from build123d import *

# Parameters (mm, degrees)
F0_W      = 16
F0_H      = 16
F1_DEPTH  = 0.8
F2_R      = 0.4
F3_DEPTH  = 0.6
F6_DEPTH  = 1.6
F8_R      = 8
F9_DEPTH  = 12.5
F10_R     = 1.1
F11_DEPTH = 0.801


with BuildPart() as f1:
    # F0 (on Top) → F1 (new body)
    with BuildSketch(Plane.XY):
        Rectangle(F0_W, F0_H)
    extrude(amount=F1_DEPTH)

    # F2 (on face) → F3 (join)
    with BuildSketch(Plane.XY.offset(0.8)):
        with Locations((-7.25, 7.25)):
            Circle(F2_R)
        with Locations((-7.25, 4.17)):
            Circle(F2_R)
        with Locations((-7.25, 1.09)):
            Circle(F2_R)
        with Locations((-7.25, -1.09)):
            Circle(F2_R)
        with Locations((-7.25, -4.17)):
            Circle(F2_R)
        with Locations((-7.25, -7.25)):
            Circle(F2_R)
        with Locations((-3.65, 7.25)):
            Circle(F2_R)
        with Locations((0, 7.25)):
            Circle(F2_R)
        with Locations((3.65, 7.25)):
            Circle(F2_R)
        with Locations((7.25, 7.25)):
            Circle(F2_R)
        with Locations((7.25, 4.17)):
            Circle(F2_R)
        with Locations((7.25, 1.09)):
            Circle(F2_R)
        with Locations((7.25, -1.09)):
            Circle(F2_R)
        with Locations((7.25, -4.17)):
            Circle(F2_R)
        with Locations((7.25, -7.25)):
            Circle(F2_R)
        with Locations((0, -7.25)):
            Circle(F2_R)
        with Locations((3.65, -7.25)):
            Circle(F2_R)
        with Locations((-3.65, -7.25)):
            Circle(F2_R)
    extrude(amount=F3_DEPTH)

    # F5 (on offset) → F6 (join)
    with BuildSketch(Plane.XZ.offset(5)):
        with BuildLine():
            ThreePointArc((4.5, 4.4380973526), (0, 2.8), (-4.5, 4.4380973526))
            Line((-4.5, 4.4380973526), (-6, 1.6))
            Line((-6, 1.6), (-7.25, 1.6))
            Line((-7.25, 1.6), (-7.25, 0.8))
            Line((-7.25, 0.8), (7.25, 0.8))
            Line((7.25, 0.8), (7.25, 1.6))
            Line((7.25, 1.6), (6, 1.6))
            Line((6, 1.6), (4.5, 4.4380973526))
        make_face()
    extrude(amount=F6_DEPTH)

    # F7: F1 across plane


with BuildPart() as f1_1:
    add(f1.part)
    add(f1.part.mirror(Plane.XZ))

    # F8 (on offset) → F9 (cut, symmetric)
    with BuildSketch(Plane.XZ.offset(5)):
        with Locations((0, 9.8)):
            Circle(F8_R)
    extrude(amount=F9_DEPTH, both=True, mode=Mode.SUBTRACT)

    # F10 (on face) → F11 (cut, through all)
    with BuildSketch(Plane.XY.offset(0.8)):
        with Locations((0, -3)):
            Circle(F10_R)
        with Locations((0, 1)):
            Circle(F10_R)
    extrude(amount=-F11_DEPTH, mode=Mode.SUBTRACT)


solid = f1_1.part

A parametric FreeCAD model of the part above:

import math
import FreeCAD as App
import Part
import Sketcher

V = App.Vector
Q = App.Units.Quantity

doc = App.newDocument("Part")
body = doc.addObject("PartDesign::Body", "Body")

sketch1 = body.newObject("Sketcher::SketchObject", "Sketch")
sketch1.AttachmentSupport = (doc.getObject("XY_Plane"), [""])
sketch1.MapMode = "FlatFace"
sketch1.addGeometry(Part.LineSegment(V(-8, 8, 0), V(-8, -8, 0)), False)
sketch1.addGeometry(Part.LineSegment(V(-8, -8, 0), V(8, -8, 0)), False)
sketch1.addGeometry(Part.LineSegment(V(8, -8, 0), V(8, 8, 0)), False)
sketch1.addGeometry(Part.LineSegment(V(8, 8, 0), V(-8, 8, 0)), False)
sketch1.addConstraint(Sketcher.Constraint("Coincident", 0, 2, 1, 1))
sketch1.addConstraint(Sketcher.Constraint("Coincident", 1, 2, 2, 1))
sketch1.addConstraint(Sketcher.Constraint("Coincident", 2, 2, 3, 1))
sketch1.addConstraint(Sketcher.Constraint("Coincident", 3, 2, 0, 1))
sketch1.addConstraint(Sketcher.Constraint("Vertical", 0))
sketch1.addConstraint(Sketcher.Constraint("Horizontal", 1))
sketch1.addConstraint(Sketcher.Constraint("Vertical", 2))
sketch1.addConstraint(Sketcher.Constraint("Horizontal", 3))
sketch1.addConstraint(Sketcher.Constraint("Symmetric", 0, 2, 2, 2, -1, 1))
sketch1.addConstraint(Sketcher.Constraint("Equal", 3, 0))
sketch1.addConstraint(Sketcher.Constraint("DistanceX", 1, 1, 1, 2, Q("16 mm")))
pad1 = body.newObject("PartDesign::Pad", "Pad")
pad1.Profile = sketch1
pad1.Length = 0.8

sketch2 = body.newObject("Sketcher::SketchObject", "Sketch001")
sketch2.AttachmentSupport = (doc.getObject("XY_Plane"), [""])
sketch2.MapMode = "FlatFace"
sketch2.AttachmentOffset = App.Placement(V(0, 0, 0.8), App.Rotation())
sketch2.addGeometry(Part.Circle(V(-7.25, 7.25, 0), V(0, 0, 1), 0.4), False)
sketch2.addGeometry(Part.Circle(V(-7.25, 4.17, 0), V(0, 0, 1), 0.4), False)
sketch2.addGeometry(Part.Circle(V(-7.25, 1.09, 0), V(0, 0, 1), 0.4), False)
sketch2.addGeometry(Part.Circle(V(-7.25, -1.09, 0), V(0, 0, 1), 0.4), False)
sketch2.addGeometry(Part.Circle(V(-7.25, -4.17, 0), V(0, 0, 1), 0.4), False)
sketch2.addGeometry(Part.Circle(V(-7.25, -7.25, 0), V(0, 0, 1), 0.4), False)
sketch2.addGeometry(Part.Circle(V(-3.65, 7.25, 0), V(0, 0, 1), 0.4), False)
sketch2.addGeometry(Part.Circle(V(0, 7.25, 0), V(0, 0, 1), 0.4), False)
sketch2.addGeometry(Part.Circle(V(3.65, 7.25, 0), V(0, 0, 1), 0.4), False)
sketch2.addGeometry(Part.Circle(V(7.25, 7.25, 0), V(0, 0, 1), 0.4), False)
sketch2.addGeometry(Part.Circle(V(7.25, 4.17, 0), V(0, 0, 1), 0.4), False)
sketch2.addGeometry(Part.Circle(V(7.25, 1.09, 0), V(0, 0, 1), 0.4), False)
sketch2.addGeometry(Part.Circle(V(7.25, -1.09, 0), V(0, 0, 1), 0.4), False)
sketch2.addGeometry(Part.Circle(V(7.25, -4.17, 0), V(0, 0, 1), 0.4), False)
sketch2.addGeometry(Part.Circle(V(7.25, -7.25, 0), V(0, 0, 1), 0.4), False)
sketch2.addGeometry(Part.Circle(V(0, -7.25, 0), V(0, 0, 1), 0.4), False)
sketch2.addGeometry(Part.Circle(V(3.65, -7.25, 0), V(0, 0, 1), 0.4), False)
sketch2.addGeometry(Part.Circle(V(-3.65, -7.25, 0), V(0, 0, 1), 0.4), False)
sketch2.addConstraint(Sketcher.Constraint("Equal", 0, 1))
sketch2.addConstraint(Sketcher.Constraint("Equal", 1, 2))
sketch2.addConstraint(Sketcher.Constraint("Equal", 2, 3))
sketch2.addConstraint(Sketcher.Constraint("Equal", 3, 4))
sketch2.addConstraint(Sketcher.Constraint("Equal", 4, 5))
sketch2.addConstraint(Sketcher.Constraint("Equal", 5, 6))
sketch2.addConstraint(Sketcher.Constraint("Equal", 6, 7))
sketch2.addConstraint(Sketcher.Constraint("Equal", 7, 8))
sketch2.addConstraint(Sketcher.Constraint("Equal", 8, 9))
sketch2.addConstraint(Sketcher.Constraint("Equal", 9, 10))
sketch2.addConstraint(Sketcher.Constraint("Equal", 10, 11))
sketch2.addConstraint(Sketcher.Constraint("Equal", 11, 12))
sketch2.addConstraint(Sketcher.Constraint("Equal", 12, 13))
sketch2.addConstraint(Sketcher.Constraint("Equal", 13, 14))
sketch2.addConstraint(Sketcher.Constraint("Equal", 14, 15))
sketch2.addConstraint(Sketcher.Constraint("Equal", 15, 16))
sketch2.addConstraint(Sketcher.Constraint("Equal", 16, 17))
sketch2.addConstraint(Sketcher.Constraint("Symmetric", 5, 3, 9, 3, -1, 1))
sketch2.addConstraint(Sketcher.Constraint("Symmetric", 4, 3, 10, 3, -1, 1))
sketch2.addConstraint(Sketcher.Constraint("Symmetric", 3, 3, 11, 3, -1, 1))
sketch2.addConstraint(Sketcher.Constraint("Symmetric", 2, 3, 12, 3, -1, 1))
sketch2.addConstraint(Sketcher.Constraint("Symmetric", 1, 3, 13, 3, -1, 1))
sketch2.addConstraint(Sketcher.Constraint("Symmetric", 0, 3, 14, 3, -1, 1))
sketch2.addConstraint(Sketcher.Constraint("Symmetric", 7, 3, 15, 3, -1, 1))
sketch2.addConstraint(Sketcher.Constraint("Symmetric", 6, 3, 16, 3, -1, 1))
sketch2.addConstraint(Sketcher.Constraint("Symmetric", 8, 3, 17, 3, -1, 1))
sketch2.addConstraint(Sketcher.Constraint("Symmetric", 6, 3, 8, 3, -2))
sketch2.addConstraint(Sketcher.Constraint("Symmetric", 0, 3, 9, 3, -2))
sketch2.addConstraint(Sketcher.Constraint("Symmetric", 1, 3, 10, 3, -2))
sketch2.addConstraint(Sketcher.Constraint("Symmetric", 2, 3, 11, 3, -2))
sketch2.addConstraint(Sketcher.Constraint("PointOnObject", 7, 3, -2))
sketch2.addConstraint(Sketcher.Constraint("Horizontal", 0, 3, 6, 3))
sketch2.addConstraint(Sketcher.Constraint("Horizontal", 6, 3, 7, 3))
sketch2.addConstraint(Sketcher.Constraint("Vertical", 0, 3, 1, 3))
sketch2.addConstraint(Sketcher.Constraint("Vertical", 1, 3, 2, 3))
sketch2.addConstraint(Sketcher.Constraint("Diameter", 0, Q("0.8 mm")))
sketch2.addConstraint(Sketcher.Constraint("DistanceY", 5, 3, 0, 3, Q("14.5 mm")))
sketch2.addConstraint(Sketcher.Constraint("DistanceX", 0, 3, 6, 3, Q("3.6 mm")))
sketch2.addConstraint(Sketcher.Constraint("DistanceX", 6, 3, 8, 3, Q("7.3 mm")))
sketch2.addConstraint(Sketcher.Constraint("DistanceY", -1, 1, 1, 3, Q("4.17 mm")))
sketch2.addConstraint(Sketcher.Constraint("DistanceY", -1, 1, 2, 3, Q("1.09 mm")))
pad2 = body.newObject("PartDesign::Pad", "Pad001")
pad2.Profile = sketch2
pad2.Length = 0.6

sketch3 = body.newObject("Sketcher::SketchObject", "Sketch002")
sketch3.AttachmentSupport = (doc.getObject("XZ_Plane"), [""])
sketch3.MapMode = "FlatFace"
sketch3.AttachmentOffset = App.Placement(V(0, 0, 5), App.Rotation())
sketch3.addGeometry(Part.ArcOfCircle(Part.Circle(V(0, 9.8, 0), V(0, 0, 1), 7), math.radians(-130), math.radians(-50)), False)
sketch3.addGeometry(Part.LineSegment(V(-4.5, 4.4, 0), V(-6, 1.6, 0)), False)
sketch3.addGeometry(Part.LineSegment(V(-6, 1.6, 0), V(-7.2, 1.6, 0)), False)
sketch3.addGeometry(Part.LineSegment(V(-7.2, 1.6, 0), V(-7.2, 0.8, 0)), False)
sketch3.addGeometry(Part.LineSegment(V(-7.2, 0.8, 0), V(7.2, 0.8, 0)), False)
sketch3.addGeometry(Part.LineSegment(V(7.2, 0.8, 0), V(7.2, 1.6, 0)), False)
sketch3.addGeometry(Part.LineSegment(V(7.2, 1.6, 0), V(6, 1.6, 0)), False)
sketch3.addGeometry(Part.LineSegment(V(6, 1.6, 0), V(4.5, 4.4, 0)), False)
sketch3.addConstraint(Sketcher.Constraint("Coincident", 0, 1, 1, 1))
sketch3.addConstraint(Sketcher.Constraint("Coincident", 1, 2, 2, 1))
sketch3.addConstraint(Sketcher.Constraint("Coincident", 2, 2, 3, 1))
sketch3.addConstraint(Sketcher.Constraint("Coincident", 3, 2, 4, 1))
sketch3.addConstraint(Sketcher.Constraint("Coincident", 4, 2, 5, 1))
sketch3.addConstraint(Sketcher.Constraint("Coincident", 5, 2, 6, 1))
sketch3.addConstraint(Sketcher.Constraint("Coincident", 6, 2, 7, 1))
sketch3.addConstraint(Sketcher.Constraint("Coincident", 7, 2, 0, 2))
sketch3.addConstraint(Sketcher.Constraint("Horizontal", 2))
sketch3.addConstraint(Sketcher.Constraint("Vertical", 3))
sketch3.addConstraint(Sketcher.Constraint("Horizontal", 4))
sketch3.addConstraint(Sketcher.Constraint("Vertical", 5))
sketch3.addConstraint(Sketcher.Constraint("Horizontal", 6))
sketch3.addConstraint(Sketcher.Constraint("Symmetric", 2, 2, 5, 2, -2))
sketch3.addConstraint(Sketcher.Constraint("Symmetric", 0, 1, 7, 2, -2))
sketch3.addConstraint(Sketcher.Constraint("Equal", 2, 6))
sketch3.addConstraint(Sketcher.Constraint("Radius", 0, Q("7 mm")))
sketch3.addConstraint(Sketcher.Constraint("DistanceX", 4, 1, 4, 2, Q("14.5 mm")))
sketch3.addConstraint(Sketcher.Constraint("DistanceY", 3, 2, 3, 1, Q("0.8 mm")))
sketch3.addConstraint(Sketcher.Constraint("DistanceX", 1, 2, -1, 1, Q("6 mm")))
sketch3.addConstraint(Sketcher.Constraint("DistanceY", 3, 2, 0, 3, Q("9 mm")))
sketch3.addConstraint(Sketcher.Constraint("DistanceX", 0, 1, 7, 2, Q("9 mm")))
sketch3.addConstraint(Sketcher.Constraint("DistanceY", -1, 1, 0, 3, Q("9.8 mm")))
pad3 = body.newObject("PartDesign::Pad", "Pad002")
pad3.Profile = sketch3
pad3.Length = 1.6
body2 = doc.addObject("PartDesign::Body", "Body001")
doc.recompute()

body2.BaseFeature = body
doc.recompute()

mirroring = doc.addObject("Part::Mirroring", "Mirroring")
mirroring.Source = body
mirroring.Base = V(0, 0, 0)
mirroring.Normal = V(0, -1, 0)
body3 = doc.addObject("PartDesign::Body", "Body002")
body3.BaseFeature = mirroring
boolean = body2.newObject("PartDesign::Boolean", "Boolean")
boolean.Type = "Fuse"
boolean.addObjects([body3])
doc.recompute()

sketch4 = body2.newObject("Sketcher::SketchObject", "Sketch003")
sketch4.AttachmentSupport = (doc.getObject("XZ_Plane001"), [""])
sketch4.MapMode = "FlatFace"
sketch4.AttachmentOffset = App.Placement(V(0, 0, 5), App.Rotation())
sketch4.addGeometry(Part.Circle(V(0, 10, 0), V(0, 0, 1), 8), False)
sketch4.addConstraint(Sketcher.Constraint("PointOnObject", 0, 3, -2))
sketch4.addConstraint(Sketcher.Constraint("Diameter", 0, Q("16 mm")))
sketch4.addConstraint(Sketcher.Constraint("DistanceY", -1, 1, 0, 3, Q("9.8 mm")))
pocket1 = body2.newObject("PartDesign::Pocket", "Pocket")
pocket1.Profile = sketch4
pocket1.Length = 25
pocket1.Midplane = True

sketch5 = body2.newObject("Sketcher::SketchObject", "Sketch004")
sketch5.AttachmentSupport = (doc.getObject("XY_Plane001"), [""])
sketch5.MapMode = "FlatFace"
sketch5.AttachmentOffset = App.Placement(V(0, 0, 0.8), App.Rotation())
sketch5.addGeometry(Part.Circle(V(0, -3, 0), V(0, 0, 1), 1.1), False)
sketch5.addGeometry(Part.Circle(V(0, 1, 0), V(0, 0, 1), 1.1), False)
sketch5.addConstraint(Sketcher.Constraint("Equal", 0, 1))
sketch5.addConstraint(Sketcher.Constraint("PointOnObject", 0, 3, -2))
sketch5.addConstraint(Sketcher.Constraint("PointOnObject", 1, 3, -2))
sketch5.addConstraint(Sketcher.Constraint("Diameter", 0, Q("2.2 mm")))
sketch5.addConstraint(Sketcher.Constraint("DistanceY", 0, 3, -1, 1, Q("3 mm")))
sketch5.addConstraint(Sketcher.Constraint("DistanceY", -1, 1, 1, 3, Q("1 mm")))
pocket2 = body2.newObject("PartDesign::Pocket", "Pocket001")
pocket2.Profile = sketch5
pocket2.Type = "ThroughAll"
mirroring.Visibility = False

doc.recompute()
